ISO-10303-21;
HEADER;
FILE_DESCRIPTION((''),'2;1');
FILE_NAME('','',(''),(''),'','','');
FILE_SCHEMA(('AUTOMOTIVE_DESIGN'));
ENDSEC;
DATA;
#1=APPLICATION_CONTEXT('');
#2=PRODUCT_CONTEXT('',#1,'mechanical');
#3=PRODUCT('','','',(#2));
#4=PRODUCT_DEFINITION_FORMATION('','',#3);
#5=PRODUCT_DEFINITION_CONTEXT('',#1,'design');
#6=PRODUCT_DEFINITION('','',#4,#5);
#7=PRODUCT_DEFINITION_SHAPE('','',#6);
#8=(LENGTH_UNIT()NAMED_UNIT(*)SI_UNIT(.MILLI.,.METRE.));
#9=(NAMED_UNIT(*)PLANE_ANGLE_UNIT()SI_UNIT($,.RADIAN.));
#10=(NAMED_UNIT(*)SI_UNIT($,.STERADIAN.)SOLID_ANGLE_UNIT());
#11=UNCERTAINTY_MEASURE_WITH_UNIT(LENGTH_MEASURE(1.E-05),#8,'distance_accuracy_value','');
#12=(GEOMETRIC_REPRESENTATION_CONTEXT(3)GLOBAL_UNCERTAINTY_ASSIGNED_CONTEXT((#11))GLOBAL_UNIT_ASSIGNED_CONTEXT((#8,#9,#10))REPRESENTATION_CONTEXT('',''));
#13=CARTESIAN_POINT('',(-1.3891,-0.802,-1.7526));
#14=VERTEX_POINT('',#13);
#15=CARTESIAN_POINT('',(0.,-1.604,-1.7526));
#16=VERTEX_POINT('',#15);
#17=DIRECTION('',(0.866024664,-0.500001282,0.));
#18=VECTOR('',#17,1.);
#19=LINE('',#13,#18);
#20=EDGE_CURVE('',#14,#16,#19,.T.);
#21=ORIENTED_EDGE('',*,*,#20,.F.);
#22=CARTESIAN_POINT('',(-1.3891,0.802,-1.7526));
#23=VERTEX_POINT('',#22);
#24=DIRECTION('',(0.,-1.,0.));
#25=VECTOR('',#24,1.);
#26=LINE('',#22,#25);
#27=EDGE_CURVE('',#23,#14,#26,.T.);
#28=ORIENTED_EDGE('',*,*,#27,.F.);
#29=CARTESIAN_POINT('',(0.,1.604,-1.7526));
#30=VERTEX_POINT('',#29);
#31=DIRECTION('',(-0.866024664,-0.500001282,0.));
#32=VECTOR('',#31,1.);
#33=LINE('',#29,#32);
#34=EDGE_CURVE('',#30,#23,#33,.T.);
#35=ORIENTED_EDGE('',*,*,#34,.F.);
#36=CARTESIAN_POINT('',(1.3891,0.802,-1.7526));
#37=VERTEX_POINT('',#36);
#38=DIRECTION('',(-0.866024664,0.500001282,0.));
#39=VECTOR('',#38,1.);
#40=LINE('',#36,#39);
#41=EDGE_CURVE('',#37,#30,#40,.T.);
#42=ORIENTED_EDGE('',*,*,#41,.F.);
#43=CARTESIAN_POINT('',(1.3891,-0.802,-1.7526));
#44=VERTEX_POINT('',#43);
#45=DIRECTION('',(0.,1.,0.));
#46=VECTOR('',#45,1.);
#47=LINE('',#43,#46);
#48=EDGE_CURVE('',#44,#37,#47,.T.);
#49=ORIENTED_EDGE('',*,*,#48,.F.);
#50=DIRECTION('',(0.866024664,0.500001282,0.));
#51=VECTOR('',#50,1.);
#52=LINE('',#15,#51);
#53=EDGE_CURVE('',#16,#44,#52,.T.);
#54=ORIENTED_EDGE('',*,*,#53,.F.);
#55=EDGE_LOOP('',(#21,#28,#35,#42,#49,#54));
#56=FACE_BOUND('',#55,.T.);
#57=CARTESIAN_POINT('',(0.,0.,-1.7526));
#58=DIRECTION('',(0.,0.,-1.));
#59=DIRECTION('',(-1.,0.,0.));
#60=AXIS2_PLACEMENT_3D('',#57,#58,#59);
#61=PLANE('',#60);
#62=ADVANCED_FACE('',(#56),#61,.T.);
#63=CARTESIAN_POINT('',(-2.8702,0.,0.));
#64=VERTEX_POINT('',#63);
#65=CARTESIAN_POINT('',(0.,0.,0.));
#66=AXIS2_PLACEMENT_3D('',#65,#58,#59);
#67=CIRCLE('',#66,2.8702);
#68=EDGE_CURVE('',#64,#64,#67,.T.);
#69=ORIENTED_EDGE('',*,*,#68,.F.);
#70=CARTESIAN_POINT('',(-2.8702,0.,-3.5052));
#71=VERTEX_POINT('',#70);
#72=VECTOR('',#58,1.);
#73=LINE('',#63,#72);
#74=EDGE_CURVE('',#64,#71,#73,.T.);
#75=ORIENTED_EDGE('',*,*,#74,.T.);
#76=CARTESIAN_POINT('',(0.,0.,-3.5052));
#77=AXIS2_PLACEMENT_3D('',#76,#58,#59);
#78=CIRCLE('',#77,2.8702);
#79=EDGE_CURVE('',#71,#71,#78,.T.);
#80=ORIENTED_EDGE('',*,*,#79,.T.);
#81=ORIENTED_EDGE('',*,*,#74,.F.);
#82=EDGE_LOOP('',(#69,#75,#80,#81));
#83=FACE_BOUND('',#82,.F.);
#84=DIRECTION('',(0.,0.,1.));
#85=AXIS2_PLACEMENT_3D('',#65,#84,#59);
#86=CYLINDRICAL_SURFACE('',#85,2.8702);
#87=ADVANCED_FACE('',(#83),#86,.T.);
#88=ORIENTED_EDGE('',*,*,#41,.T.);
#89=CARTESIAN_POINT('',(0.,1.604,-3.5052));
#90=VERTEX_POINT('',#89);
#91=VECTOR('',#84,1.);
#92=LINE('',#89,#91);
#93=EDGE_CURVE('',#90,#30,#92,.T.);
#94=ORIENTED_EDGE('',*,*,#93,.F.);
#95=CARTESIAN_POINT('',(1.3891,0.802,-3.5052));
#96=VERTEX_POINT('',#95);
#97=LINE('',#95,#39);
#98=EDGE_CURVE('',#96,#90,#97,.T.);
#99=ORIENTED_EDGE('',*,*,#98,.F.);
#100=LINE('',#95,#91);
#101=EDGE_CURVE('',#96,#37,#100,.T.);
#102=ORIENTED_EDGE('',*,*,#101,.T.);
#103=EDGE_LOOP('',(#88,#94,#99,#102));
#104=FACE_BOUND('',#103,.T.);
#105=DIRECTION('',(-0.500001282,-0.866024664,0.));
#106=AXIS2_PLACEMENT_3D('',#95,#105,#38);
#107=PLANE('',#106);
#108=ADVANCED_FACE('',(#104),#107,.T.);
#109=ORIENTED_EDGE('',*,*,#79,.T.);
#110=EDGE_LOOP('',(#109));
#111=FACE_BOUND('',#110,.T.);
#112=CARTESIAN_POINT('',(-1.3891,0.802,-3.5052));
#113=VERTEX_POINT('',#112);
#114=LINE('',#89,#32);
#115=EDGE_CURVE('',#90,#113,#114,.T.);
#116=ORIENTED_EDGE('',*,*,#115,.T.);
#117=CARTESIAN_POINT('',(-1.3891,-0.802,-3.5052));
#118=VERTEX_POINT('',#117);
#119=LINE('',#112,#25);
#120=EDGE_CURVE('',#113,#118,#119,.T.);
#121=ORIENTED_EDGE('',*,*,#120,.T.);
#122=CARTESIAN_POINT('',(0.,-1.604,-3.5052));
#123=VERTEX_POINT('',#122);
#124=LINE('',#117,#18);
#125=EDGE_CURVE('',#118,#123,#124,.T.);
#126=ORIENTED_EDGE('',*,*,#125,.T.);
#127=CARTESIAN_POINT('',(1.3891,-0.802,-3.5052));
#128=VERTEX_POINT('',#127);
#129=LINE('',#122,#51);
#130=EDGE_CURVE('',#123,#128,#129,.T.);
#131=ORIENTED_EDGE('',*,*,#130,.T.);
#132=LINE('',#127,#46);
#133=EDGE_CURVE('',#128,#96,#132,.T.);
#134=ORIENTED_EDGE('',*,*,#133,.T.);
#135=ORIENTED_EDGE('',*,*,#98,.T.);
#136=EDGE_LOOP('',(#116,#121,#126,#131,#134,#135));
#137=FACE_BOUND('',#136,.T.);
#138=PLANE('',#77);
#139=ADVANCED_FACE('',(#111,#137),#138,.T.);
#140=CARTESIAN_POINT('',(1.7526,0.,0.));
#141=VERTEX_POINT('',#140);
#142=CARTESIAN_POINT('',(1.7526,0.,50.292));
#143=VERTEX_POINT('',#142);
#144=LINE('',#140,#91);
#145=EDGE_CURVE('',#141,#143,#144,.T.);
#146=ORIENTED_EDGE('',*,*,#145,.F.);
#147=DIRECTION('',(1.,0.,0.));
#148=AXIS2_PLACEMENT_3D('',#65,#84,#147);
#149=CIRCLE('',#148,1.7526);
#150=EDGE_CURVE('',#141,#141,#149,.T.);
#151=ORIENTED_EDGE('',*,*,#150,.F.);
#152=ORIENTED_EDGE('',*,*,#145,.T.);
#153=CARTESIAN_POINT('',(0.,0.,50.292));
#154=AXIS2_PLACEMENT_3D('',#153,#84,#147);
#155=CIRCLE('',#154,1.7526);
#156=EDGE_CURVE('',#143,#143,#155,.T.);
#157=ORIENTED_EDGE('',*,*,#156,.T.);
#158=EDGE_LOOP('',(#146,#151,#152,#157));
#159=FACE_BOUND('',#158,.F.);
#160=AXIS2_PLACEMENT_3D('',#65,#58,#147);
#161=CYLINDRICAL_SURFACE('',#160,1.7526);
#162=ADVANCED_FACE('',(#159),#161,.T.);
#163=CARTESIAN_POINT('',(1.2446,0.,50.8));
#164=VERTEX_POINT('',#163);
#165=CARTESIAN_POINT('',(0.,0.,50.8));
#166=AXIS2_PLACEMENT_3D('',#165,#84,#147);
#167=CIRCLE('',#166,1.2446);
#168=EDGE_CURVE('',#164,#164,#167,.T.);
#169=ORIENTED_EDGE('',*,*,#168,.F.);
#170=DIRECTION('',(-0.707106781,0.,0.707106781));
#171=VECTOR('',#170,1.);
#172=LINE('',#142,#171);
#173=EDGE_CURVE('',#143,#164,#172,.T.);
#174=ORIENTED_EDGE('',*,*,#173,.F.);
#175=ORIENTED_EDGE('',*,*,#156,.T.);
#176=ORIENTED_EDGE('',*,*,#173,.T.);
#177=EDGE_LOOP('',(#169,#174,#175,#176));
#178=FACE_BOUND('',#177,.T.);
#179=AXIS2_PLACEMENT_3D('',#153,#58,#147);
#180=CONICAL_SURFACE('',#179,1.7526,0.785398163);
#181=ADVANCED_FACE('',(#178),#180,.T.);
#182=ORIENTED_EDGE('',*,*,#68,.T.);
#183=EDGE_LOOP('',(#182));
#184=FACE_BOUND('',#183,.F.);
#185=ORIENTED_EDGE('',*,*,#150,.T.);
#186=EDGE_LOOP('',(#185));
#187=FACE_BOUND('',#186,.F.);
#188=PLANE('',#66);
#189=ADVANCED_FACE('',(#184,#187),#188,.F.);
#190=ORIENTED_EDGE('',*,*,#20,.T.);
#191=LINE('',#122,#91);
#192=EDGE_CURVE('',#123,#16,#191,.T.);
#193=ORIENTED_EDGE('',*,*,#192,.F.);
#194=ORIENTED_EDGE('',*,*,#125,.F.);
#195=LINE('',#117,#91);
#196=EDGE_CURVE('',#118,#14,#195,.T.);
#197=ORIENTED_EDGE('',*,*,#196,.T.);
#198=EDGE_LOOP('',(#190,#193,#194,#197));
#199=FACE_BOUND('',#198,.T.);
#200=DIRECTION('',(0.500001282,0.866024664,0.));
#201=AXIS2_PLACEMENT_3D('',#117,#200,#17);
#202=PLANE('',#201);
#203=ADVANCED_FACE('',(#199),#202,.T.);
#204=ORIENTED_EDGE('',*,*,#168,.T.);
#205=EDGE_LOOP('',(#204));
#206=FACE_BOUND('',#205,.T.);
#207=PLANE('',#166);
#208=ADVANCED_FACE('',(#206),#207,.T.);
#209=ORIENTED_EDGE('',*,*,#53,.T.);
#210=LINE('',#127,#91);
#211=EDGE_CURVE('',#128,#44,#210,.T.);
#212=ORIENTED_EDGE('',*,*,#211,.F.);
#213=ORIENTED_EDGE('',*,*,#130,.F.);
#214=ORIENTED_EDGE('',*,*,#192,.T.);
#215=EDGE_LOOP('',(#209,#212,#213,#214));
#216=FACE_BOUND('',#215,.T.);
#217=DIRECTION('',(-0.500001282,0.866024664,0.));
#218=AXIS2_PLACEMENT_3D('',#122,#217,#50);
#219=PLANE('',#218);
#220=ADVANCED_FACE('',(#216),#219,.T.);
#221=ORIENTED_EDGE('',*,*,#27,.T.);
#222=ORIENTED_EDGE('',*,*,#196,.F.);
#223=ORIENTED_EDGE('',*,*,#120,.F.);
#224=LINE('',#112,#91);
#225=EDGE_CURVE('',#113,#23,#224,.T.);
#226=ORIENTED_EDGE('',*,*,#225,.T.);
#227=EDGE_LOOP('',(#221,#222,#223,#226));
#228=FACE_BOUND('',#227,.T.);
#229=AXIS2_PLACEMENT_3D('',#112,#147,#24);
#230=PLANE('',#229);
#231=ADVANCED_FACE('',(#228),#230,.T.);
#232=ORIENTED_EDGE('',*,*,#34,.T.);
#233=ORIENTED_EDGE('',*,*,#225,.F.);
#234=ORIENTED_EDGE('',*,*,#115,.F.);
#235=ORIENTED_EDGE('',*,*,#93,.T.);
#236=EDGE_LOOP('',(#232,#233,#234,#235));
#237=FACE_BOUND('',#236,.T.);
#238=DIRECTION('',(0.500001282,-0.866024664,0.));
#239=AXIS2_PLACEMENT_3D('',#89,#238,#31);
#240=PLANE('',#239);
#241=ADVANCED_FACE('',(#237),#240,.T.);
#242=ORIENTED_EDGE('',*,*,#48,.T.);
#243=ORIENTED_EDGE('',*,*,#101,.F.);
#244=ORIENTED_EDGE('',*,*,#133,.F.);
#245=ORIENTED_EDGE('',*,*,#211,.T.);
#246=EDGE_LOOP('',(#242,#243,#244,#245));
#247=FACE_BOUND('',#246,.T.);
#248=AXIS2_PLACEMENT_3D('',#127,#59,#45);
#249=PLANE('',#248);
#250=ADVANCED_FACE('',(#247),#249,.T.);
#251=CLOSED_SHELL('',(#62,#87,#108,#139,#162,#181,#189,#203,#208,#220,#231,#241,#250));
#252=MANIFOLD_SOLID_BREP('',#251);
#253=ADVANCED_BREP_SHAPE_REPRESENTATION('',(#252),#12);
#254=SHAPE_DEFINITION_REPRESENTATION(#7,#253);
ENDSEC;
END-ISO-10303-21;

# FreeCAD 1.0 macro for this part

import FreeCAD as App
import Part
import Sketcher
from FreeCAD import Vector
Q = App.Units.Quantity


def edges_at(feature, points):
    """Names of the edges that pass closest to the given points."""
    edges = feature.Shape.Edges
    near = lambda p: min(range(len(edges)), key=lambda i: edges[i].distToShape(Part.Vertex(*p))[0])
    return sorted({f"Edge{near(p) + 1}" for p in points})


def add_polygon(sketch, points):
    """Adds a closed chain of lines whose ends are joined by coincident constraints."""
    first, n = sketch.GeometryCount, len(points)
    for a, b in zip(points, points[1:] + points[:1]):
        sketch.addGeometry(Part.LineSegment(App.Vector(*a, 0), App.Vector(*b, 0)), False)
    for i in range(n):
        sketch.addConstraint(Sketcher.Constraint("Coincident", first + i, 2, first + (i + 1) % n, 1))

doc = App.newDocument("Part")
params = doc.addObject("Spreadsheet::Sheet", "Params")
for row, (alias, value) in enumerate([
    ("sketch1_diameter", "0.138 in"),
    ("pad1_length", "2 in"),
    ("sketch2_diameter", "0.226 in"),
    ("pad2_length", "0.138 in"),
    ("pocket1_length", "0.069 in"),
    ("chamfer_size", "0.02 in"),
], start=1):
    params.set(f"A{row}", alias)
    params.set(f"B{row}", "=" + value)
    params.setAlias(f"B{row}", alias)

body = doc.addObject("PartDesign::Body", "Body")

# Sketch on XY plane
sketch1 = body.newObject("Sketcher::SketchObject", "Sketch")
sketch1.AttachmentSupport = (doc.getObject("XY_Plane"), [""])
sketch1.MapMode = "FlatFace"
sketch1.addGeometry(Part.Circle(Vector(0, 0, 0), Vector(0, 0, 1), 1.8), False)
sketch1.addConstraint([
    Sketcher.Constraint("Coincident", 0, 3, -1, 1),
    Sketcher.Constraint("Diameter", 0, Q("0.138 in")),
])
sketch1.setExpression("Constraints[1]", "Params.sketch1_diameter")
pad1 = body.newObject("PartDesign::Pad", "Pad")
pad1.Profile = sketch1
pad1.setExpression("Length", "Params.pad1_length")

# Sketch on XY plane
sketch2 = body.newObject("Sketcher::SketchObject", "Sketch001")
sketch2.AttachmentSupport = (doc.getObject("XY_Plane"), [""])
sketch2.MapMode = "FlatFace"
sketch2.addGeometry(Part.Circle(Vector(0, 0, 0), Vector(0, 0, 1), 2.9), False)
sketch2.addConstraint([
    Sketcher.Constraint("Coincident", 0, 3, -1, 1),
    Sketcher.Constraint("Diameter", 0, Q("0.226 in")),
])
sketch2.setExpression("Constraints[1]", "Params.sketch2_diameter")
pad2 = body.newObject("PartDesign::Pad", "Pad001")
pad2.Profile = sketch2
pad2.setExpression("Length", "Params.pad2_length")
pad2.Reversed = True

# Sketch on XY plane
sketch3 = body.newObject("Sketcher::SketchObject", "Sketch002")
sketch3.AttachmentSupport = (doc.getObject("XY_Plane"), [""])
sketch3.MapMode = "FlatFace"
sketch3.AttachmentOffset = App.Placement(Vector(0, 0, -0.138 * 25.4), App.Rotation())
add_polygon(sketch3, [(-1.4, 0.8), (0, 1.6), (1.4, 0.8), (1.4, -0.8), (0, -1.6), (-1.4, -0.8)])  # lines 0-5
sketch3.addConstraint([
    Sketcher.Constraint("Vertical", 2),
    Sketcher.Constraint("Vertical", 5),
    Sketcher.Constraint("Symmetric", 0, 2, 3, 2, -1, 1),
    Sketcher.Constraint("Symmetric", 1, 2, 4, 2, -1, 1),
    Sketcher.Constraint("PointOnObject", 0, 2, -2),
    Sketcher.Constraint("Parallel", 0, 3),
    Sketcher.Constraint("Horizontal", 2, 2, 4, 2),
    Sketcher.Constraint("Angle", 0, Q("30 deg")),
    Sketcher.Constraint("DistanceX", 4, 2, 2, 2, Q("0.109378 in")),
    Sketcher.Constraint("DistanceY", 2, 2, 2, 1, Q("1.604 mm")),
])
pocket1 = body.newObject("PartDesign::Pocket", "Pocket")
pocket1.Profile = sketch3
pocket1.setExpression("Length", "Params.pocket1_length")
pocket1.Reversed = True
doc.recompute()

chamfer = body.newObject("PartDesign::Chamfer", "Chamfer")
chamfer.Base = (pocket1, edges_at(pocket1, [(-1.753, 0, 50.8)]))
chamfer.setExpression("Size", "Params.chamfer_size")

doc.recompute()
